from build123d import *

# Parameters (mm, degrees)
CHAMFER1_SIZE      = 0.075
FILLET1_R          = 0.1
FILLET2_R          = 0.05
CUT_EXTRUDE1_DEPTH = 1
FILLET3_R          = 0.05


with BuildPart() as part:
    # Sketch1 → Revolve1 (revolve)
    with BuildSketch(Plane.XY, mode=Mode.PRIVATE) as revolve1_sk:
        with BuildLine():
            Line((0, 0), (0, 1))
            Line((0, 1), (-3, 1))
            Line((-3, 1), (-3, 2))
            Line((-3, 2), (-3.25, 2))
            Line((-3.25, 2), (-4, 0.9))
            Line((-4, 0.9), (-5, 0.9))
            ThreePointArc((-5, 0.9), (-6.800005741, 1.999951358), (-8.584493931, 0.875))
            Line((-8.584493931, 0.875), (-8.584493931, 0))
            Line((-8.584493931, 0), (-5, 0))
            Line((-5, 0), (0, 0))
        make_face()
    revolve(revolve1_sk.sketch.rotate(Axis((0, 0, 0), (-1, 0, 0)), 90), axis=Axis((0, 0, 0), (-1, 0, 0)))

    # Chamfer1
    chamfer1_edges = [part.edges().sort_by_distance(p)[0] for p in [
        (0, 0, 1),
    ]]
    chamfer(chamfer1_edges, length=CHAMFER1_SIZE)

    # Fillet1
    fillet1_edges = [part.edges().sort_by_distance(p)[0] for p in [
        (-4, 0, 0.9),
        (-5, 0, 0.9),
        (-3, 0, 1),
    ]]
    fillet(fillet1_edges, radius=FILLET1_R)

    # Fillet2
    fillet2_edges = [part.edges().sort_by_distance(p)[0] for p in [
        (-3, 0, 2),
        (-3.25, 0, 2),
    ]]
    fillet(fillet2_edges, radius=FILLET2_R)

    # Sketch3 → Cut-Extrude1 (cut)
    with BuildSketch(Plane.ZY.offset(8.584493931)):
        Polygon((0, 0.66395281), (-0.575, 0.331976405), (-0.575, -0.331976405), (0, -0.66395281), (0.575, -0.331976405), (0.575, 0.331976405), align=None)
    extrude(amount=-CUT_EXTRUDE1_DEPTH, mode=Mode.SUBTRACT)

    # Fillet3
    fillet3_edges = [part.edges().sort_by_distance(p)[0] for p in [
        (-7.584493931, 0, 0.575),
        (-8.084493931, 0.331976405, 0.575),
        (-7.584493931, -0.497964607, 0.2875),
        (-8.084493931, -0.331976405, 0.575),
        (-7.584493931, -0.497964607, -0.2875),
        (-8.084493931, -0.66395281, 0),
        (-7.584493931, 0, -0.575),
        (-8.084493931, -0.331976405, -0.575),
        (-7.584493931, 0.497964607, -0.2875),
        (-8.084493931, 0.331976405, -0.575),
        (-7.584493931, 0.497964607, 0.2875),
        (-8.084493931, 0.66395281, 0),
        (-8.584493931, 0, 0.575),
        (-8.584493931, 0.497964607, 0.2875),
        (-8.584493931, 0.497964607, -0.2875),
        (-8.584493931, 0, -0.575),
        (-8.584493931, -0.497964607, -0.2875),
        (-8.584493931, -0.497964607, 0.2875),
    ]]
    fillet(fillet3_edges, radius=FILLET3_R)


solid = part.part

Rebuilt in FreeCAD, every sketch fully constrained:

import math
import FreeCAD as App
import Part
import Sketcher
from FreeCAD import Vector
Q = App.Units.Quantity


def edges_at(feature, points):
    """Names of the edges that pass closest to the given points."""
    edges = feature.Shape.Edges
    near = lambda p: min(range(len(edges)), key=lambda i: edges[i].distToShape(Part.Vertex(*p))[0])
    return sorted({f"Edge{near(p) + 1}" for p in points})

doc = App.newDocument("Part")
body = doc.addObject("PartDesign::Body", "Body")

# Sketch on XY plane
sketch1 = doc.addObject("Sketcher::SketchObject", "Sketch")
body.addObject(sketch1)
sketch1.AttachmentSupport = (doc.XY_Plane, [""])
sketch1.MapMode = "FlatFace"
sketch1.addGeometry([
    Part.LineSegment(Vector(0, 0, 0), Vector(0, 1, 0)),  # 0
    Part.LineSegment(Vector(0, 1, 0), Vector(-3, 1, 0)),  # 1
    Part.LineSegment(Vector(-3, 1, 0), Vector(-3, 2, 0)),  # 2
    Part.LineSegment(Vector(-3, 2, 0), Vector(-3.25, 2, 0)),  # 3
    Part.LineSegment(Vector(-3.25, 2, 0), Vector(-4, 0.9, 0)),  # 4
    Part.LineSegment(Vector(-4, 0.9, 0), Vector(-5, 0.9, 0)),  # 5
    Part.ArcOfCircle(Part.Circle(Vector(-6.79, 0, 0), Vector(0, 0, 1), 2), math.radians(27), math.radians(154)),  # 6
    Part.LineSegment(Vector(-8.58, 0.88, 0), Vector(-8.58, 0, 0)),  # 7
    Part.LineSegment(Vector(-8.58, 0, 0), Vector(0, 0, 0)),  # 8
], False)
sketch1.addConstraint([
    Sketcher.Constraint("Coincident", 0, 2, 1, 1),
    Sketcher.Constraint("Coincident", 1, 2, 2, 1),
    Sketcher.Constraint("Coincident", 2, 2, 3, 1),
    Sketcher.Constraint("Coincident", 3, 2, 4, 1),
    Sketcher.Constraint("Coincident", 4, 2, 5, 1),
    Sketcher.Constraint("Coincident", 5, 2, 6, 1),
    Sketcher.Constraint("Coincident", 6, 2, 7, 1),
    Sketcher.Constraint("Coincident", 7, 2, 8, 1),
    Sketcher.Constraint("Coincident", 8, 2, 0, 1),
    Sketcher.Constraint("Vertical", 0),
    Sketcher.Constraint("Horizontal", 1),
    Sketcher.Constraint("Vertical", 2),
    Sketcher.Constraint("Horizontal", 3),
    Sketcher.Constraint("Horizontal", 5),
    Sketcher.Constraint("Vertical", 7),
    Sketcher.Constraint("Horizontal", 8),
    Sketcher.Constraint("Coincident", 8, 2, -1, 1),
    Sketcher.Constraint("PointOnObject", 6, 3, -1),
    Sketcher.Constraint("Equal", 5, 0),
    Sketcher.Constraint("Equal", 0, 2),
    Sketcher.Constraint("Radius", 6, 2.0),
    Sketcher.Constraint("DistanceX", 1, 2, 1, 1, 3.0),
    Sketcher.Constraint("DistanceX", 5, 2, 5, 1, 1.0),
    Sketcher.Constraint("DistanceX", 4, 2, -1, 1, 4.0),
    Sketcher.Constraint("DistanceX", 3, 2, 3, 1, 0.25),
    Sketcher.Constraint("DistanceY", -1, 1, 4, 2, 0.9),
    Sketcher.Constraint("DistanceY", 7, 2, 7, 1, 0.875),
])
revolution = doc.addObject("PartDesign::Revolution", "Revolution")
body.addObject(revolution)
revolution.Profile = sketch1
revolution.ReferenceAxis = (sketch1, ["H_Axis"])
revolution.Angle = 360
doc.recompute()

chamfer = doc.addObject("PartDesign::Chamfer", "Chamfer")
body.addObject(chamfer)
chamfer.Base = (revolution, edges_at(revolution, [(0, 0, 1)]))
chamfer.Size = 0.075
doc.recompute()

fillet = doc.addObject("PartDesign::Fillet", "Fillet")
body.addObject(fillet)
fillet.Base = (chamfer, edges_at(chamfer, [(-4, 0, 0.9), (-5, 0, 0.9), (-3, 0, 1)]))
fillet.Radius = 0.1
doc.recompute()

fillet2 = doc.addObject("PartDesign::Fillet", "Fillet001")
body.addObject(fillet2)
fillet2.Base = (fillet, edges_at(fillet, [(-3, 0, 2), (-3.25, 0, 2)]))
fillet2.Radius = 0.05

# Sketch on YZ plane
sketch2 = doc.addObject("Sketcher::SketchObject", "Sketch001")
body.addObject(sketch2)
sketch2.AttachmentSupport = (doc.YZ_Plane, [""])
sketch2.MapMode = "FlatFace"
sketch2.AttachmentOffset = App.Placement(Vector(0, 0, -8.584494), App.Rotation())
sketch2.addGeometry([
    Part.LineSegment(Vector(0.7, 0, 0), Vector(0.3, -0.6, 0)),  # 0
    Part.LineSegment(Vector(0.3, -0.6, 0), Vector(-0.3, -0.6, 0)),  # 1
    Part.LineSegment(Vector(-0.3, -0.6, 0), Vector(-0.7, 0, 0)),  # 2
    Part.LineSegment(Vector(-0.7, 0, 0), Vector(-0.3, 0.6, 0)),  # 3
    Part.LineSegment(Vector(-0.3, 0.6, 0), Vector(0.3, 0.6, 0)),  # 4
    Part.LineSegment(Vector(0.3, 0.6, 0), Vector(0.7, 0, 0)),  # 5
], False)
sketch2.addConstraint([
    Sketcher.Constraint("Coincident", 0, 2, 1, 1),
    Sketcher.Constraint("Coincident", 1, 2, 2, 1),
    Sketcher.Constraint("Coincident", 2, 2, 3, 1),
    Sketcher.Constraint("Coincident", 3, 2, 4, 1),
    Sketcher.Constraint("Coincident", 4, 2, 5, 1),
    Sketcher.Constraint("Coincident", 5, 2, 0, 1),
    Sketcher.Constraint("Horizontal", 1),
    Sketcher.Constraint("Horizontal", 4),
    Sketcher.Constraint("Symmetric", 0, 2, 3, 2, -1, 1),
    Sketcher.Constraint("Symmetric", 2, 2, 5, 2, -1, 1),
    Sketcher.Constraint("PointOnObject", 2, 2, -1),
    Sketcher.Constraint("Parallel", 2, 5),
    Sketcher.Constraint("Vertical", 1, 2, 3, 2),
    Sketcher.Constraint("Angle", 0, Q("-120 deg")),
    Sketcher.Constraint("DistanceY", 1, 2, 3, 2, 1.15),
    Sketcher.Constraint("DistanceX", 1, 2, 1, 1, 0.663953),
])
pocket1 = doc.addObject("PartDesign::Pocket", "Pocket")
body.addObject(pocket1)
pocket1.Profile = sketch2
pocket1.Length = 1
pocket1.Reversed = True
doc.recompute()

fillet3 = doc.addObject("PartDesign::Fillet", "Fillet002")
body.addObject(fillet3)
fillet3.Base = (pocket1, edges_at(pocket1, [
    (-7.584, 0, 0.575),
    (-8.084, 0.332, 0.575),
    (-7.584, -0.498, 0.287),
    (-8.084, -0.332, 0.575),
    (-7.584, -0.498, -0.287),
    (-8.084, -0.664, 0),
    (-7.584, 0, -0.575),
    (-8.084, -0.332, -0.575),
    (-7.584, 0.498, -0.287),
    (-8.084, 0.332, -0.575),
    (-7.584, 0.498, 0.287),
    (-8.084, 0.664, 0),
    (-8.584, 0, 0.575),
    (-8.584, 0.498, 0.287),
    (-8.584, 0.498, -0.287),
    (-8.584, 0, -0.575),
    (-8.584, -0.498, -0.287),
    (-8.584, -0.498, 0.287),
]))
fillet3.Radius = 0.05

doc.recompute()
